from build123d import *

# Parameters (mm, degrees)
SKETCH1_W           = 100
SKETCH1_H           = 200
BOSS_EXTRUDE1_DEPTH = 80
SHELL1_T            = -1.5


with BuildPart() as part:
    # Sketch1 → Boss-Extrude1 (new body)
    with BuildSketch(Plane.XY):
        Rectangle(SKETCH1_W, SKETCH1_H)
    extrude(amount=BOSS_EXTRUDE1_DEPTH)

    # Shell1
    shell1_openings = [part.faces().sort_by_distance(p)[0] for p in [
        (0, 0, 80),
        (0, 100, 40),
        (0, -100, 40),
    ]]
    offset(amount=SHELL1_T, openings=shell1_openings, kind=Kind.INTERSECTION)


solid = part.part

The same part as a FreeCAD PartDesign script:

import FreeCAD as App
import Part
import Sketcher


def faces_at(feature, points):
    """Names of the faces that lie closest to the given points."""
    faces = feature.Shape.Faces
    near = lambda p: min(range(len(faces)), key=lambda i: faces[i].distToShape(Part.Vertex(*p))[0])
    return sorted({f"Face{near(p) + 1}" for p in points})


def add_polygon(sketch, points):
    """Adds a closed chain of lines whose ends are joined by coincident constraints."""
    first, n = sketch.GeometryCount, len(points)
    for a, b in zip(points, points[1:] + points[:1]):
        sketch.addGeometry(Part.LineSegment(App.Vector(*a, 0), App.Vector(*b, 0)), False)
    for i in range(n):
        sketch.addConstraint(Sketcher.Constraint("Coincident", first + i, 2, first + (i + 1) % n, 1))

doc = App.newDocument("Part")
params = doc.addObject("Spreadsheet::Sheet", "Params")
for row, (alias, value) in enumerate([
    ("sketch1_width", "100 mm"),
    ("sketch1_height", "200 mm"),
    ("pad1_length", "80 mm"),
    ("thickness_wall", "1.5 mm"),
], start=1):
    params.set(f"A{row}", alias)
    params.set(f"B{row}", "=" + value)
    params.setAlias(f"B{row}", alias)

body = doc.addObject("PartDesign::Body", "Body")

# Sketch on XY plane
sketch1 = body.newObject("Sketcher::SketchObject", "Sketch")
sketch1.AttachmentSupport = (doc.getObject("XY_Plane"), [""])
sketch1.MapMode = "FlatFace"
add_polygon(sketch1, [(-50, 100), (-50, -100), (50, -100), (50, 100)])  # lines 0-3
sketch1.addConstraint([
    Sketcher.Constraint("Vertical", 0),
    Sketcher.Constraint("Horizontal", 1),
    Sketcher.Constraint("Vertical", 2),
    Sketcher.Constraint("Horizontal", 3),
    Sketcher.Constraint("Symmetric", 0, 2, 2, 2, -1, 1),
    Sketcher.Constraint("DistanceX", 1, 1, 1, 2, 100.0),
    Sketcher.Constraint("DistanceY", 0, 2, 0, 1, 200.0),
])
sketch1.setExpression("Constraints[9]", "Params.sketch1_width")
sketch1.setExpression("Constraints[10]", "Params.sketch1_height")
pad1 = body.newObject("PartDesign::Pad", "Pad")
pad1.Profile = sketch1
pad1.setExpression("Length", "Params.pad1_length")
doc.recompute()

thickness = body.newObject("PartDesign::Thickness", "Thickness")
thickness.Base = (pad1, faces_at(pad1, [(0, 0, 80), (0, 100, 40), (0, -100, 40)]))
thickness.setExpression("Value", "Params.thickness_wall")
thickness.Reversed = True
thickness.Join = "Intersection"

doc.recompute()
